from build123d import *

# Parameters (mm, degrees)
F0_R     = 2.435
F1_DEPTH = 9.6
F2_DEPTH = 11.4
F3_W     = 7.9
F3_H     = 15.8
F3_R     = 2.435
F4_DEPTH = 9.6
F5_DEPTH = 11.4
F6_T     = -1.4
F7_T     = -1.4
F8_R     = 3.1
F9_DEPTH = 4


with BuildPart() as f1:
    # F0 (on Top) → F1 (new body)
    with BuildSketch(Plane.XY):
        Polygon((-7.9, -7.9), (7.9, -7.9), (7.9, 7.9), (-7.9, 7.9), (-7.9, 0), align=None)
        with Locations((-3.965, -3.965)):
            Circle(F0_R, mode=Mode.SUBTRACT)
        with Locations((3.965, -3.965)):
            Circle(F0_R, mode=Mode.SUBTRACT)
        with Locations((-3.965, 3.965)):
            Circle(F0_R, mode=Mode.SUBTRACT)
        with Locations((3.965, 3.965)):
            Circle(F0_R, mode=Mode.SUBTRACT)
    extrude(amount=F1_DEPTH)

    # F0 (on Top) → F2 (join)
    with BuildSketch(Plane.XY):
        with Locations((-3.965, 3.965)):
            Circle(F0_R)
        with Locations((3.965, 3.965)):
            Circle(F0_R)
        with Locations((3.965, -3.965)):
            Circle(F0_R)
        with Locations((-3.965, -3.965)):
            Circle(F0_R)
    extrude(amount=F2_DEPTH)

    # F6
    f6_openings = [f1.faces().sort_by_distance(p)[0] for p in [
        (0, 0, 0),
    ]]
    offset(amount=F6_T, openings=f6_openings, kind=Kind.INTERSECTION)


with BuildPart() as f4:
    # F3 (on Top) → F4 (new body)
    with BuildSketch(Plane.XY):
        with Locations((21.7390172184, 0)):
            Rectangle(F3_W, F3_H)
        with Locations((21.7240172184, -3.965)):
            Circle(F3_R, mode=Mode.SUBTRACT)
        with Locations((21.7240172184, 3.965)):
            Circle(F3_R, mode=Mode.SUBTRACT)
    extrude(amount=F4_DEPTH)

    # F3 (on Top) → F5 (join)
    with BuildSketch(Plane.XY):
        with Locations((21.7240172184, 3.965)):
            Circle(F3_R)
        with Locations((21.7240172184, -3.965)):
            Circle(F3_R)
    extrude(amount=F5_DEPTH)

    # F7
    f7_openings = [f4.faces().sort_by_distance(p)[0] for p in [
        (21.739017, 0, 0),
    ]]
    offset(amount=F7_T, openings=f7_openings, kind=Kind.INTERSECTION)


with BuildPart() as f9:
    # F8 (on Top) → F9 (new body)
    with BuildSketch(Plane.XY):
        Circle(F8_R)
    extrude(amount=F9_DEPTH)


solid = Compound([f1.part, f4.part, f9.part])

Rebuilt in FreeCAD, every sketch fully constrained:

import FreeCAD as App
import Part
import Sketcher

V = App.Vector
Q = App.Units.Quantity


def faces_at(feature, points):
    """Names of the faces that lie closest to the given points."""
    faces = feature.Shape.Faces
    near = lambda p: min(range(len(faces)), key=lambda i: faces[i].distToShape(Part.Vertex(*p))[0])
    return sorted({f"Face{near(p) + 1}" for p in points})


def add_polygon(sketch, points):
    """Adds a closed chain of lines whose ends are joined by coincident constraints."""
    first, n = sketch.GeometryCount, len(points)
    for a, b in zip(points, points[1:] + points[:1]):
        sketch.addGeometry(Part.LineSegment(App.Vector(*a, 0), App.Vector(*b, 0)), False)
    for i in range(n):
        sketch.addConstraint(Sketcher.Constraint("Coincident", first + i, 2, first + (i + 1) % n, 1))

doc = App.newDocument("Part")
params = doc.addObject("Spreadsheet::Sheet", "Params")
for row, (alias, value) in enumerate([
    ("sketch1_diameter", "4.87 mm"),
    ("sketch1_width", "15.8 mm"),
    ("pad1_length", "9.6 mm"),
    ("sketch2_diameter", "4.87 mm"),
    ("pad2_length", "11.4 mm"),
    ("thickness_wall", "1.4 mm"),
    ("sketch3_diameter", "4.87 mm"),
    ("sketch3_width", "7.9 mm"),
    ("sketch3_height", "15.8 mm"),
    ("pad3_length", "9.6 mm"),
    ("sketch4_diameter", "4.87 mm"),
    ("pad4_length", "11.4 mm"),
    ("thickness2_wall", "1.4 mm"),
    ("sketch5_diameter", "6.2 mm"),
    ("pad5_length", "4 mm"),
], start=1):
    params.set(f"A{row}", alias)
    params.set(f"B{row}", "=" + value)
    params.setAlias(f"B{row}", alias)

body = doc.addObject("PartDesign::Body", "Body")

# Sketch on XY plane
sketch1 = body.newObject("Sketcher::SketchObject", "Sketch")
sketch1.AttachmentSupport = (doc.getObject("XY_Plane"), [""])
sketch1.MapMode = "FlatFace"
add_polygon(sketch1, [(-7.9, -7.9), (7.9, -7.9), (7.9, 7.9), (-7.9, 7.9)])  # lines 0-3
sketch1.addGeometry(Part.Circle(V(-4, -4, 0), V(0, 0, 1), 2.4), False)  # 4
sketch1.addGeometry(Part.Circle(V(4, -4, 0), V(0, 0, 1), 2.4), False)  # 5
sketch1.addGeometry(Part.Circle(V(-4, 4, 0), V(0, 0, 1), 2.4), False)  # 6
sketch1.addGeometry(Part.Circle(V(4, 4, 0), V(0, 0, 1), 2.4), False)  # 7
sketch1.addConstraint([
    Sketcher.Constraint("Horizontal", 0),
    Sketcher.Constraint("Vertical", 1),
    Sketcher.Constraint("Horizontal", 2),
    Sketcher.Constraint("Vertical", 3),
    Sketcher.Constraint("Equal", 4, 5),
    Sketcher.Constraint("Equal", 5, 6),
    Sketcher.Constraint("Equal", 6, 7),
    Sketcher.Constraint("Symmetric", 5, 3, 6, 3, -1, 1),
    Sketcher.Constraint("Symmetric", 4, 3, 7, 3, -1, 1),
    Sketcher.Constraint("Symmetric", 0, 2, 2, 2, -1, 1),
    Sketcher.Constraint("Symmetric", 4, 3, 5, 3, -2),
    Sketcher.Constraint("Equal", 2, 1),
    Sketcher.Constraint("Diameter", 4, Q("4.87 mm")),
    Sketcher.Constraint("DistanceX", 0, 1, 0, 2, Q("15.8 mm")),
    Sketcher.Constraint("DistanceX", 4, 3, 5, 3, Q("7.93 mm")),
    Sketcher.Constraint("DistanceY", 4, 3, 6, 3, Q("7.93 mm")),
])
sketch1.setExpression("Constraints[16]", "Params.sketch1_diameter")
sketch1.setExpression("Constraints[17]", "Params.sketch1_width")
pad1 = body.newObject("PartDesign::Pad", "Pad")
pad1.Profile = sketch1
pad1.setExpression("Length", "Params.pad1_length")

# Sketch on XY plane
sketch2 = body.newObject("Sketcher::SketchObject", "Sketch001")
sketch2.AttachmentSupport = (doc.getObject("XY_Plane"), [""])
sketch2.MapMode = "FlatFace"
sketch2.addGeometry([
    Part.Circle(V(-4, 4, 0), V(0, 0, 1), 2.4),
    Part.Circle(V(4, 4, 0), V(0, 0, 1), 2.4),
    Part.Circle(V(4, -4, 0), V(0, 0, 1), 2.4),
    Part.Circle(V(-4, -4, 0), V(0, 0, 1), 2.4),
], False)
sketch2.addConstraint([
    Sketcher.Constraint("Equal", 0, 1),
    Sketcher.Constraint("Equal", 1, 2),
    Sketcher.Constraint("Equal", 2, 3),
    Sketcher.Constraint("Symmetric", 0, 3, 2, 3, -1, 1),
    Sketcher.Constraint("Symmetric", 1, 3, 3, 3, -1, 1),
    Sketcher.Constraint("Symmetric", 0, 3, 1, 3, -2),
    Sketcher.Constraint("Diameter", 0, Q("4.87 mm")),
    Sketcher.Constraint("DistanceX", 0, 3, 1, 3, Q("7.93 mm")),
    Sketcher.Constraint("DistanceY", 2, 3, 1, 3, Q("7.93 mm")),
])
sketch2.setExpression("Constraints[6]", "Params.sketch2_diameter")
pad2 = body.newObject("PartDesign::Pad", "Pad001")
pad2.Profile = sketch2
pad2.setExpression("Length", "Params.pad2_length")
doc.recompute()

thickness = body.newObject("PartDesign::Thickness", "Thickness")
thickness.Base = (pad2, faces_at(pad2, [(0, 0, 0)]))
thickness.setExpression("Value", "Params.thickness_wall")
thickness.Reversed = True
thickness.Join = "Intersection"
body2 = doc.addObject("PartDesign::Body", "Body001")

# Sketch on XY plane
sketch3 = body2.newObject("Sketcher::SketchObject", "Sketch002")
sketch3.AttachmentSupport = (doc.getObject("XY_Plane001"), [""])
sketch3.MapMode = "FlatFace"
add_polygon(sketch3, [(17.8, 7.9), (17.8, -7.9), (25.7, -7.9), (25.7, 7.9)])  # lines 0-3
sketch3.addGeometry(Part.Circle(V(21.7, -4, 0), V(0, 0, 1), 2.4), False)  # 4
sketch3.addGeometry(Part.Circle(V(21.7, 4, 0), V(0, 0, 1), 2.4), False)  # 5
sketch3.addConstraint([
    Sketcher.Constraint("Vertical", 0),
    Sketcher.Constraint("Horizontal", 1),
    Sketcher.Constraint("Vertical", 2),
    Sketcher.Constraint("Horizontal", 3),
    Sketcher.Constraint("Equal", 4, 5),
    Sketcher.Constraint("Symmetric", 4, 3, 5, 3, -1),
    Sketcher.Constraint("Diameter", 4, Q("4.87 mm")),
    Sketcher.Constraint("DistanceX", 1, 1, 1, 2, Q("7.9 mm")),
    Sketcher.Constraint("DistanceY", 0, 2, 0, 1, Q("15.8 mm")),
    Sketcher.Constraint("DistanceY", 0, 2, -1, 1, Q("7.9 mm")),
    Sketcher.Constraint("DistanceY", 4, 3, 5, 3, Q("7.93 mm")),
    Sketcher.Constraint("DistanceX", 0, 2, 4, 3, Q("3.935 mm")),
    Sketcher.Constraint("DistanceX", -1, 1, 4, 3, Q("21.724017 mm")),
])
sketch3.setExpression("Constraints[10]", "Params.sketch3_diameter")
sketch3.setExpression("Constraints[11]", "Params.sketch3_width")
sketch3.setExpression("Constraints[12]", "Params.sketch3_height")
pad3 = body2.newObject("PartDesign::Pad", "Pad002")
pad3.Profile = sketch3
pad3.setExpression("Length", "Params.pad3_length")

# Sketch on XY plane
sketch4 = body2.newObject("Sketcher::SketchObject", "Sketch003")
sketch4.AttachmentSupport = (doc.getObject("XY_Plane001"), [""])
sketch4.MapMode = "FlatFace"
sketch4.addGeometry([
    Part.Circle(V(21.7, 4, 0), V(0, 0, 1), 2.4),
    Part.Circle(V(21.7, -4, 0), V(0, 0, 1), 2.4),
], False)
sketch4.addConstraint([
    Sketcher.Constraint("Equal", 0, 1),
    Sketcher.Constraint("Symmetric", 0, 3, 1, 3, -1),
    Sketcher.Constraint("Diameter", 0, Q("4.87 mm")),
    Sketcher.Constraint("DistanceY", 1, 3, 0, 3, Q("7.93 mm")),
    Sketcher.Constraint("DistanceX", -1, 1, 0, 3, Q("21.724017 mm")),
])
sketch4.setExpression("Constraints[2]", "Params.sketch4_diameter")
pad4 = body2.newObject("PartDesign::Pad", "Pad003")
pad4.Profile = sketch4
pad4.setExpression("Length", "Params.pad4_length")
doc.recompute()

thickness2 = body2.newObject("PartDesign::Thickness", "Thickness001")
thickness2.Base = (pad4, faces_at(pad4, [(21.739, 0, 0)]))
thickness2.setExpression("Value", "Params.thickness2_wall")
thickness2.Reversed = True
thickness2.Join = "Intersection"
body3 = doc.addObject("PartDesign::Body", "Body002")

# Sketch on XY plane
sketch5 = body3.newObject("Sketcher::SketchObject", "Sketch004")
sketch5.AttachmentSupport = (doc.getObject("XY_Plane002"), [""])
sketch5.MapMode = "FlatFace"
sketch5.addGeometry(Part.Circle(V(0, 0, 0), V(0, 0, 1), 3.1), False)
sketch5.addConstraint([
    Sketcher.Constraint("Coincident", 0, 3, -1, 1),
    Sketcher.Constraint("Diameter", 0, Q("6.2 mm")),
])
sketch5.setExpression("Constraints[1]", "Params.sketch5_diameter")
pad5 = body3.newObject("PartDesign::Pad", "Pad004")
pad5.Profile = sketch5
pad5.setExpression("Length", "Params.pad5_length")

doc.recompute()
